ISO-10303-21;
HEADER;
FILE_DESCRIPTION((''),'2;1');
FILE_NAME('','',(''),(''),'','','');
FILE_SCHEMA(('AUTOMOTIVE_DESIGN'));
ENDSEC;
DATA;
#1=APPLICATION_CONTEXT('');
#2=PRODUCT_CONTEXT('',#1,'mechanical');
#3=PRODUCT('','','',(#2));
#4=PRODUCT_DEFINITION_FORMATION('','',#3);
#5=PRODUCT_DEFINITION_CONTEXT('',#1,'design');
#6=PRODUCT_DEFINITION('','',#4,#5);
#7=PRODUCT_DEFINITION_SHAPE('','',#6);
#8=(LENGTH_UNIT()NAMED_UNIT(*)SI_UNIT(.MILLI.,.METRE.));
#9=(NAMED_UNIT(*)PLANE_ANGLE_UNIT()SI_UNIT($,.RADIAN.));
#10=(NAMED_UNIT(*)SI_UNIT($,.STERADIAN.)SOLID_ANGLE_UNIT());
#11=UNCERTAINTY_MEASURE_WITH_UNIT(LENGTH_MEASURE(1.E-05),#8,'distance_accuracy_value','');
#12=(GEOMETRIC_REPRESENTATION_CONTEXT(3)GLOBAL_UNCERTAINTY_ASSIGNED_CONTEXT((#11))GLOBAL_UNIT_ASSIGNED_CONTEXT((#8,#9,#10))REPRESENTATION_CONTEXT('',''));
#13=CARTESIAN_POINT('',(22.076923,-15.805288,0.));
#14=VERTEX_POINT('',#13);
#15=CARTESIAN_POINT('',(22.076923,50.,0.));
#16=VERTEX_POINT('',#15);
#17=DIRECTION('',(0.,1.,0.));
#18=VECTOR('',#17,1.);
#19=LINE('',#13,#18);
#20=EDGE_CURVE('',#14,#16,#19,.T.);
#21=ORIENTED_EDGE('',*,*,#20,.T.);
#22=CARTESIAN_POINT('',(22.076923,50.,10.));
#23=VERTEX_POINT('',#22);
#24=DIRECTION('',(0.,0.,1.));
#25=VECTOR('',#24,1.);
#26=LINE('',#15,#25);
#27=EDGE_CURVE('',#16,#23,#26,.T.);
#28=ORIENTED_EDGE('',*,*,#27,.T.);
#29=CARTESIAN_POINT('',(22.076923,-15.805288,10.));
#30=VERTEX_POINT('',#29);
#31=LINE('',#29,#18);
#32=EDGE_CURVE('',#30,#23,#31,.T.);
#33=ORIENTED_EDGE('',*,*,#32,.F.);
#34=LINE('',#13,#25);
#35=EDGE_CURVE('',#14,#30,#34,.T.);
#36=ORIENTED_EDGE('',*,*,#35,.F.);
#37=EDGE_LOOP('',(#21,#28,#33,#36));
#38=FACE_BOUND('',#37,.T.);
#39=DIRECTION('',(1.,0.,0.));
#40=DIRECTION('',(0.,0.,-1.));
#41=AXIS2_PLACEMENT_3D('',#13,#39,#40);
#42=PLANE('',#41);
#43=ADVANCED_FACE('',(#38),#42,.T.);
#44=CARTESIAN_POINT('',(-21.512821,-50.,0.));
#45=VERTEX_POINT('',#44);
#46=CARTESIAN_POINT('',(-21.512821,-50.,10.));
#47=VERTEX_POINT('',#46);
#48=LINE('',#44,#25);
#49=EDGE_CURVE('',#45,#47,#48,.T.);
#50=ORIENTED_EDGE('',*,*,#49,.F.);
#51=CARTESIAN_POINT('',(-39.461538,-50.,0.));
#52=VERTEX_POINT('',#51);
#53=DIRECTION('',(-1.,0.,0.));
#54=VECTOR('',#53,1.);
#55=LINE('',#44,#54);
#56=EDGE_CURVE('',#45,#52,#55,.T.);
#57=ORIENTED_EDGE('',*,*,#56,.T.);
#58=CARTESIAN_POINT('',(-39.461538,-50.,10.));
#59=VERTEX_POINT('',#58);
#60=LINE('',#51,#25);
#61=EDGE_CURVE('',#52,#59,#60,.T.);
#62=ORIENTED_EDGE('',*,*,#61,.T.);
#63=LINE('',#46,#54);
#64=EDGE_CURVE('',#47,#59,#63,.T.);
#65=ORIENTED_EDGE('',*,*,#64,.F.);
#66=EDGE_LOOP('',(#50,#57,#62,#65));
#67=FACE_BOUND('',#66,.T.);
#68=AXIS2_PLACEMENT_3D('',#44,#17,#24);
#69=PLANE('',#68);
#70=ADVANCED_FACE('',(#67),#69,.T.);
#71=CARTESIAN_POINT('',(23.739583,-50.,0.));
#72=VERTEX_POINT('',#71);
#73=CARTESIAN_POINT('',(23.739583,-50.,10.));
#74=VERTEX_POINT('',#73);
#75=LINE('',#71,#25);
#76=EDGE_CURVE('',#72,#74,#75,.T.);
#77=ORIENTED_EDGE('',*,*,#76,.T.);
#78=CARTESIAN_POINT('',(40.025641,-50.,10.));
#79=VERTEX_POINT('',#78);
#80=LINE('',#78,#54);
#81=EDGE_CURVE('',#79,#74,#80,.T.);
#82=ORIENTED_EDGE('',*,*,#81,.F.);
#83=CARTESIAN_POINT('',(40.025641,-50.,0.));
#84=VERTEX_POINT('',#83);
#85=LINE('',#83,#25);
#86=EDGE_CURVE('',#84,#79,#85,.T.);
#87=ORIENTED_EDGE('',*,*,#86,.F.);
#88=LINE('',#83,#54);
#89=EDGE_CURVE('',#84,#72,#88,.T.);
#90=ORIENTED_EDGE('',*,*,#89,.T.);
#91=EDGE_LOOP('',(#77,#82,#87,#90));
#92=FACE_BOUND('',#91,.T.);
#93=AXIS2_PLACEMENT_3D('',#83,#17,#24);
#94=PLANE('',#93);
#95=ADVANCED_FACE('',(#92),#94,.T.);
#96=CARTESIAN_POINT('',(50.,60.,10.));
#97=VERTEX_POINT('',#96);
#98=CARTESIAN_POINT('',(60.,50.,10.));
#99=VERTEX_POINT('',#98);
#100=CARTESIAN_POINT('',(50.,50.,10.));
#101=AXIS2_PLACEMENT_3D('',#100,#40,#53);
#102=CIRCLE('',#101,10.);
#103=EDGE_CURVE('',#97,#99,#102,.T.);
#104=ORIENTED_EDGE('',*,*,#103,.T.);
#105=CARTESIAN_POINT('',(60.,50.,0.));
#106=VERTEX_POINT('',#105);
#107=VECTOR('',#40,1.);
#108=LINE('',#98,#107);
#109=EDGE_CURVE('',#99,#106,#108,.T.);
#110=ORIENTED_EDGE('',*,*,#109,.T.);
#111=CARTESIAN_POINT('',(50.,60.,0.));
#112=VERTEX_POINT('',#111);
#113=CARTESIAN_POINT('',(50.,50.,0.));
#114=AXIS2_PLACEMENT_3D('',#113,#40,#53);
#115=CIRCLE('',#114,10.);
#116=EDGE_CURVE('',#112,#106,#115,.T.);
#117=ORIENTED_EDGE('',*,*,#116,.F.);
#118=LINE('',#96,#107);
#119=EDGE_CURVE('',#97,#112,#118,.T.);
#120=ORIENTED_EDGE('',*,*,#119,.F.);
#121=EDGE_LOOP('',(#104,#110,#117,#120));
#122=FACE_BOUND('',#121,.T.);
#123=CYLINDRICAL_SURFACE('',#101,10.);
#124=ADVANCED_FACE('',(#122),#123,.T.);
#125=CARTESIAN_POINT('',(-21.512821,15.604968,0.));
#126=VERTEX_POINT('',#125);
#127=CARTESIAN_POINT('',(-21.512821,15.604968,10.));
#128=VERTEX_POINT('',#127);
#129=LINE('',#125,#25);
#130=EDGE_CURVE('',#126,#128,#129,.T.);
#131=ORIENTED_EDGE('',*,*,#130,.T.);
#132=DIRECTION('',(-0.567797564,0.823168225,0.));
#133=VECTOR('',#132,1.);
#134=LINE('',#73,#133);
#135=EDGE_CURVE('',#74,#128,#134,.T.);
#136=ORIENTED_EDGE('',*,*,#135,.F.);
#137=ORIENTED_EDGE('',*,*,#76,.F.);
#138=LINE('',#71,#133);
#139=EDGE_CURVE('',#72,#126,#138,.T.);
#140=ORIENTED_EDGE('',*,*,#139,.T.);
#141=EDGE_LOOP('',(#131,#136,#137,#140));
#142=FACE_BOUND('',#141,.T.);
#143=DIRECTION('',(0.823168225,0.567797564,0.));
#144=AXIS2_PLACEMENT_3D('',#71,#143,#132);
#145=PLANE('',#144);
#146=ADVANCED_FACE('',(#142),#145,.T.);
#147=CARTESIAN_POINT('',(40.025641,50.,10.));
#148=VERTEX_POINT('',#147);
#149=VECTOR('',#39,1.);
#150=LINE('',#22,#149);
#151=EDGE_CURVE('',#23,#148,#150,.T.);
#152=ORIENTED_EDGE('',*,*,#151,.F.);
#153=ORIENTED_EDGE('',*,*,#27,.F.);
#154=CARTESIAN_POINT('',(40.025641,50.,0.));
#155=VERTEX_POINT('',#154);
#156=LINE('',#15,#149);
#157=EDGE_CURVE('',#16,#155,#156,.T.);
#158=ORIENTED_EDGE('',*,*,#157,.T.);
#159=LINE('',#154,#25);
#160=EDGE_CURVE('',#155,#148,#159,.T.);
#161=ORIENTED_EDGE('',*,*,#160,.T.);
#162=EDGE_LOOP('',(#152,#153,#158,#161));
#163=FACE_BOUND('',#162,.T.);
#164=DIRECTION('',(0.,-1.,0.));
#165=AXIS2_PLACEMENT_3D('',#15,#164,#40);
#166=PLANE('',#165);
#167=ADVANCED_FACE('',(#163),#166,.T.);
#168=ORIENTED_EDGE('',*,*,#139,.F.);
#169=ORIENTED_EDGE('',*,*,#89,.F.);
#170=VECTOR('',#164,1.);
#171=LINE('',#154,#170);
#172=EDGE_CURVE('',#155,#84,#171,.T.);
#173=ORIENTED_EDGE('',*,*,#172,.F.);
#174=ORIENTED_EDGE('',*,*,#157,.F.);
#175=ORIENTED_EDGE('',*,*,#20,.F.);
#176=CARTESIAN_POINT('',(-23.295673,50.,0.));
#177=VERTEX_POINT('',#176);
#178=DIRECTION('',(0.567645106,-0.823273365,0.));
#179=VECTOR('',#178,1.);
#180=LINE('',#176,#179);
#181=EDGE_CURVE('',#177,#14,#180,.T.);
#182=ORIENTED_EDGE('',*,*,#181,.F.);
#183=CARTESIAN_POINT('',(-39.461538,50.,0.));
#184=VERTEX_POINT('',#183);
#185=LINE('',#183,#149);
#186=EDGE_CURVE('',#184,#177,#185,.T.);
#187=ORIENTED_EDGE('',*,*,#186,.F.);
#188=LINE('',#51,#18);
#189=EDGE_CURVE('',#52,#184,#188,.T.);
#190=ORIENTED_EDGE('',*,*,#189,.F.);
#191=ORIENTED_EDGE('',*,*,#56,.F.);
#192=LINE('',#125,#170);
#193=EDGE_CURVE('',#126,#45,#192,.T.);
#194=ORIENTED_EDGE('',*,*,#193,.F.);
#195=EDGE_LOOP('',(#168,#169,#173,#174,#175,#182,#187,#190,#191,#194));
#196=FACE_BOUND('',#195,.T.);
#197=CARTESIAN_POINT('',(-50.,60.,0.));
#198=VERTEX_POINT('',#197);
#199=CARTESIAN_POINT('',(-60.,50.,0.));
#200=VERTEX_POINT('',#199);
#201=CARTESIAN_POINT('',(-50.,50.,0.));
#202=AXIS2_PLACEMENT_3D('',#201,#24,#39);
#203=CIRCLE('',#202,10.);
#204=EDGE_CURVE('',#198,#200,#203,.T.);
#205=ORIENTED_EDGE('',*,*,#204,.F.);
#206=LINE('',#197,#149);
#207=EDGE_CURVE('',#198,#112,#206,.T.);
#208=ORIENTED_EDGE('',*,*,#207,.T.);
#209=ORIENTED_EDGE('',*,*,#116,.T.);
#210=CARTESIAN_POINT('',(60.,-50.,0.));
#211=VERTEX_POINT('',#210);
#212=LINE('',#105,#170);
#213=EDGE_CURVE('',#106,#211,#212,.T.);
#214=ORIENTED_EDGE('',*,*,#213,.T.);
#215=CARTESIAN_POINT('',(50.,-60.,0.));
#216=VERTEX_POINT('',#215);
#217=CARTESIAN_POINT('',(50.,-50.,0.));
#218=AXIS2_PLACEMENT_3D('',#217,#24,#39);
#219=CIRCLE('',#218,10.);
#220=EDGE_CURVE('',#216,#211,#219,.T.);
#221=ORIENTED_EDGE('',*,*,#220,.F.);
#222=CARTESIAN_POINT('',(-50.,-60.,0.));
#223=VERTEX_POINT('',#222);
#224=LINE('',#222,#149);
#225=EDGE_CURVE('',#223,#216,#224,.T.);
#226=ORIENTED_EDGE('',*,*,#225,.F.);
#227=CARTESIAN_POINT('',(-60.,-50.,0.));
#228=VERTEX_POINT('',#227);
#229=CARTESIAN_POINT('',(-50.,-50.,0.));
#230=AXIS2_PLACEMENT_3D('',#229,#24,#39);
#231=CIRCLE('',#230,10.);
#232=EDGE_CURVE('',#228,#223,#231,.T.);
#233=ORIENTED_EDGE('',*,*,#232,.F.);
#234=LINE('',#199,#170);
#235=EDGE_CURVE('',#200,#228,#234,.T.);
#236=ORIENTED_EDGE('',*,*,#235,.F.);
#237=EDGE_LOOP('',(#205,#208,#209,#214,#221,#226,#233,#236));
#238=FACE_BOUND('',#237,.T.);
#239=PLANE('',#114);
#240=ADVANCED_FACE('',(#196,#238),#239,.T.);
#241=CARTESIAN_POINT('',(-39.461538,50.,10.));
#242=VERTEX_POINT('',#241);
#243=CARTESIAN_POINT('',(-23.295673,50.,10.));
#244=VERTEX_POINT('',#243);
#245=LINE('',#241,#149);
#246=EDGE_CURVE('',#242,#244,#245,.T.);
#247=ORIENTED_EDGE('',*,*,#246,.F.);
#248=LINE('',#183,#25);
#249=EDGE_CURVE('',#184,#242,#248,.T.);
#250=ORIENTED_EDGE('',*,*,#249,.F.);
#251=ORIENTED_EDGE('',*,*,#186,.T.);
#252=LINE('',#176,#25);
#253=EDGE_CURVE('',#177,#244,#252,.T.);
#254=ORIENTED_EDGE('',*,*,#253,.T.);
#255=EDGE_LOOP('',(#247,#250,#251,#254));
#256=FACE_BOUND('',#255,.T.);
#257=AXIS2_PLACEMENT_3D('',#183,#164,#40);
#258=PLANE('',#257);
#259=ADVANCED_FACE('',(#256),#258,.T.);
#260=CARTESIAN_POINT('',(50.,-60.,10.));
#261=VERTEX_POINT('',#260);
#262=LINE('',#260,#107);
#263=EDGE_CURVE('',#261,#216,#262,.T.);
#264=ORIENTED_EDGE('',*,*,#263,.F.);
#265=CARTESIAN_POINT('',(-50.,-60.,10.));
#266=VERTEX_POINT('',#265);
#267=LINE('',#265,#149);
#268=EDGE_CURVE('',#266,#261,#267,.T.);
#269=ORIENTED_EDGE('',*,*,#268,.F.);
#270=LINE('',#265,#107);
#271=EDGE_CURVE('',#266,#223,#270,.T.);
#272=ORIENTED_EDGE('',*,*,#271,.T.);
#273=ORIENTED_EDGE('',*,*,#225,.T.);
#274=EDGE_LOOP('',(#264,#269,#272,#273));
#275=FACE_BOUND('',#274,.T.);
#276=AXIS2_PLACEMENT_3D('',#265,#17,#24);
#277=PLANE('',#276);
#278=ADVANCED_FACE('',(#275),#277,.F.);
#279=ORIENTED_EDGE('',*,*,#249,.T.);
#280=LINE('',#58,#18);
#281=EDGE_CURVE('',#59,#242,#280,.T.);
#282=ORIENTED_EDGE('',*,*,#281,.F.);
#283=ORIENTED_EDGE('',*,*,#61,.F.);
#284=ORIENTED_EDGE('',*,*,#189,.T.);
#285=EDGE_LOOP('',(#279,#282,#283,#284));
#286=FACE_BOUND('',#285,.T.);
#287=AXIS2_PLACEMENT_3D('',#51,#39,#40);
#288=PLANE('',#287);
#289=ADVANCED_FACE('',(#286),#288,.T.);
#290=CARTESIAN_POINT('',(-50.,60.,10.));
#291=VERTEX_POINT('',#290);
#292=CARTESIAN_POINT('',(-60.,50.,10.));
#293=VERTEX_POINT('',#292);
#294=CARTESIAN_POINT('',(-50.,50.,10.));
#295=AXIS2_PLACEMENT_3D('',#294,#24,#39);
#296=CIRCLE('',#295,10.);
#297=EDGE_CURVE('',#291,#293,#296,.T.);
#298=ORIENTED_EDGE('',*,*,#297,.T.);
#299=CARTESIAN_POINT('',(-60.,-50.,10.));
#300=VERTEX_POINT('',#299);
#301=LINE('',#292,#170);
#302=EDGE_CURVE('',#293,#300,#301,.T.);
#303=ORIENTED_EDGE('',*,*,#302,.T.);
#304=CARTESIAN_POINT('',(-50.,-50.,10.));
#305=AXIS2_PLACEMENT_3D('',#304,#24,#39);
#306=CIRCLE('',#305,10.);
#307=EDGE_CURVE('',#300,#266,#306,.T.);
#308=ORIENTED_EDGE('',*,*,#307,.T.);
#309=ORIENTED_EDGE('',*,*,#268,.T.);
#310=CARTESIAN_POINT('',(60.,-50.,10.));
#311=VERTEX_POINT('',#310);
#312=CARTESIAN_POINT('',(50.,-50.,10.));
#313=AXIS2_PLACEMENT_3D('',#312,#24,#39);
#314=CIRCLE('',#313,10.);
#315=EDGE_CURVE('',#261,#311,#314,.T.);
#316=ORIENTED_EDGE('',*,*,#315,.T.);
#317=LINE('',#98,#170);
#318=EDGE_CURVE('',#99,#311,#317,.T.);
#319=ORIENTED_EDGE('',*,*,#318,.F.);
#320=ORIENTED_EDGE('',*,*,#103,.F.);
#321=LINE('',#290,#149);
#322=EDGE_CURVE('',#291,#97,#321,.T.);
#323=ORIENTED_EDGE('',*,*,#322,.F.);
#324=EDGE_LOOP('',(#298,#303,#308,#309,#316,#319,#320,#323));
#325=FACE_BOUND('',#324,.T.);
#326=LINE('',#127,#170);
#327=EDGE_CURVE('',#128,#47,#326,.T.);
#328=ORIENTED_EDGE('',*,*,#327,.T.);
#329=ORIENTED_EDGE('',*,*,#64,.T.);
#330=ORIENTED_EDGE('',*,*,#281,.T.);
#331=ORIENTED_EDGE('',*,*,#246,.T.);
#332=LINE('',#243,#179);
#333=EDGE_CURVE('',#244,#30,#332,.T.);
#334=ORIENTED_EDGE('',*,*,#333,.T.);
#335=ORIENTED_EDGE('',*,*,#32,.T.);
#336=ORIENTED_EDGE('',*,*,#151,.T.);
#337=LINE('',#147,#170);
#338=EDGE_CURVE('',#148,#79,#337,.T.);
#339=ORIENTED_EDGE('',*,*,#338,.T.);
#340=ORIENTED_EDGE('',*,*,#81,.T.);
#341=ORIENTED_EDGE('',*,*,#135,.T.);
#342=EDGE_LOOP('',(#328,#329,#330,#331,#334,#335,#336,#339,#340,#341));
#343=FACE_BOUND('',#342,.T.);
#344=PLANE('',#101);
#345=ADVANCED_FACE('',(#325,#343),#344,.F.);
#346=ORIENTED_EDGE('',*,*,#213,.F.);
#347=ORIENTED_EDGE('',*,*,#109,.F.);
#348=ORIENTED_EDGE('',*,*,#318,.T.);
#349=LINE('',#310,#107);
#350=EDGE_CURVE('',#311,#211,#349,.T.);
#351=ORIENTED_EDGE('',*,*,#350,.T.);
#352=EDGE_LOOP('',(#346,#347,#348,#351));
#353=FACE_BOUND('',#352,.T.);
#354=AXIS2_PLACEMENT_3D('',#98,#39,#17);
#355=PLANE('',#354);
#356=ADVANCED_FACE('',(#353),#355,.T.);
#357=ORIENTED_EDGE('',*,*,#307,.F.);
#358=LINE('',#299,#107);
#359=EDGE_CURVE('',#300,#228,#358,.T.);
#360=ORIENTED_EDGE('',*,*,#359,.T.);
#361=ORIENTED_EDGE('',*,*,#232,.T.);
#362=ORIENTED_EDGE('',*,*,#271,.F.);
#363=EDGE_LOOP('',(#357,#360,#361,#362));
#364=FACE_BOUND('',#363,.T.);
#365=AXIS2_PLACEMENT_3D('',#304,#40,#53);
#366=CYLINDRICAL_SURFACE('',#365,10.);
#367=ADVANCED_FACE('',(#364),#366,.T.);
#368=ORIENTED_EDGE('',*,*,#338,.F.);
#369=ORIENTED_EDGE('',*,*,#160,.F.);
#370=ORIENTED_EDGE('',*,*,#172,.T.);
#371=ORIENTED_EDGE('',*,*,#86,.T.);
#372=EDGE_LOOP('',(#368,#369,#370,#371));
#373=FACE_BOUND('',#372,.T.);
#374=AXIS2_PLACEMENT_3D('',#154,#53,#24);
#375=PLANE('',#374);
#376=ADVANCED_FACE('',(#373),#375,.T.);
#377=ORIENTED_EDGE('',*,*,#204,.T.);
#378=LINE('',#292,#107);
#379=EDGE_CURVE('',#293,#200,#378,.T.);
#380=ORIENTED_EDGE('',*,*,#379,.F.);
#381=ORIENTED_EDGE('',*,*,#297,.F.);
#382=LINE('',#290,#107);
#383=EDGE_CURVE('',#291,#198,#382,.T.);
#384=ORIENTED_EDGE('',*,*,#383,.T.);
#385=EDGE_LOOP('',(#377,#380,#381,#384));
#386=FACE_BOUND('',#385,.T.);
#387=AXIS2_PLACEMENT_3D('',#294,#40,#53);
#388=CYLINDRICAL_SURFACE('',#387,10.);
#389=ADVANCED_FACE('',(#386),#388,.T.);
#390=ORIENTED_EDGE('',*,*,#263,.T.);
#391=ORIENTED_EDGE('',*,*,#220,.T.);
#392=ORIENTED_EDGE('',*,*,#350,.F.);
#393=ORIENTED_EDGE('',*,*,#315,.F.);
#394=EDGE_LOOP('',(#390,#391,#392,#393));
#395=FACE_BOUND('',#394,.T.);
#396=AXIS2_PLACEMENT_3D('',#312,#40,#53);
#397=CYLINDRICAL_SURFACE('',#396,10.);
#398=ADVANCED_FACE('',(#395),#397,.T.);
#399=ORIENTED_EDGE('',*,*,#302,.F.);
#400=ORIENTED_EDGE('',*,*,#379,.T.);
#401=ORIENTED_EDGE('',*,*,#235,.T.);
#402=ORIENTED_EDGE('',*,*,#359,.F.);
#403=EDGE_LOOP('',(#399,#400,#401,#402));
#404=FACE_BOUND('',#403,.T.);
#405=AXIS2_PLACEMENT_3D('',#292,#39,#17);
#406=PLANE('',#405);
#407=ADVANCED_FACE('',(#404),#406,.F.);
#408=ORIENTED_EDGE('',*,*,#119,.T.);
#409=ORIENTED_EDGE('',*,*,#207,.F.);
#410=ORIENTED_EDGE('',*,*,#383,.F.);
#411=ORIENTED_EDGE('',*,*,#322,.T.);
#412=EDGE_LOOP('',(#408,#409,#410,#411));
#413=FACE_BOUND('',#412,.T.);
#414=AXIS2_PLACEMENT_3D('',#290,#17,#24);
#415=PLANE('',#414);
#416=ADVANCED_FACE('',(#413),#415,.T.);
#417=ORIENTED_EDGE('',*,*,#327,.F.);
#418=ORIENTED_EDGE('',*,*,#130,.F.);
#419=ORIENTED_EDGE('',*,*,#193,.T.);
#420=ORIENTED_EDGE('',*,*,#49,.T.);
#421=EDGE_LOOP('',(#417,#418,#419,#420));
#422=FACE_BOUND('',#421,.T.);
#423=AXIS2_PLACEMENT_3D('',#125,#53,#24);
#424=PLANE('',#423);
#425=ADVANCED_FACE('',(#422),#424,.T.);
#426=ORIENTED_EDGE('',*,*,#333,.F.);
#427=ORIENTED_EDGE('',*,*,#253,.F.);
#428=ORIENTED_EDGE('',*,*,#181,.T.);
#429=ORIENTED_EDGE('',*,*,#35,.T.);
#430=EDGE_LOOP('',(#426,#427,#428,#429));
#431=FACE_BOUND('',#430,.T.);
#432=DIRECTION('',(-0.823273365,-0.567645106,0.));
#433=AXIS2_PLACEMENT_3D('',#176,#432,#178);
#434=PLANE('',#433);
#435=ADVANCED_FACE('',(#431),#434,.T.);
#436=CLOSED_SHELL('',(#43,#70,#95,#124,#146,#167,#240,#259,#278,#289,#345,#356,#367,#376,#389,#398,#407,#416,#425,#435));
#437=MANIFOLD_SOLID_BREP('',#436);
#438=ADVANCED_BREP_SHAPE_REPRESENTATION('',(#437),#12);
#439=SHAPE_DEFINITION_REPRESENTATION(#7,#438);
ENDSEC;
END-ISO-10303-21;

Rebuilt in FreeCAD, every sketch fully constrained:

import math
import FreeCAD as App
import Part
import Sketcher

V = App.Vector

doc = App.newDocument("Part")
body = doc.addObject("PartDesign::Body", "Body")

# Sketch on XY plane
sketch1 = doc.addObject("Sketcher::SketchObject", "Sketch")
body.addObject(sketch1)
sketch1.AttachmentSupport = (doc.XY_Plane, [""])
sketch1.MapMode = "FlatFace"
sketch1.addGeometry(Part.LineSegment(V(50, 60, 0), V(-50, 60, 0)), False)
sketch1.addGeometry(Part.ArcOfCircle(Part.Circle(V(-50, 50, 0), V(0, 0, 1), 10), math.radians(90), math.radians(180)), False)
sketch1.addGeometry(Part.LineSegment(V(-60, 50, 0), V(-60, -50, 0)), False)
sketch1.addGeometry(Part.ArcOfCircle(Part.Circle(V(-50, -50, 0), V(0, 0, 1), 10), math.radians(180), math.radians(270)), False)
sketch1.addGeometry(Part.LineSegment(V(-50, -60, 0), V(50, -60, 0)), False)
sketch1.addGeometry(Part.ArcOfCircle(Part.Circle(V(50, -50, 0), V(0, 0, 1), 10), math.radians(-90), math.radians(0)), False)
sketch1.addGeometry(Part.LineSegment(V(60, -50, 0), V(60, 50, 0)), False)
sketch1.addGeometry(Part.ArcOfCircle(Part.Circle(V(50, 50, 0), V(0, 0, 1), 10), math.radians(0), math.radians(90)), False)
sketch1.addConstraint(Sketcher.Constraint("Tangent", 0, 2, 1, 1))
sketch1.addConstraint(Sketcher.Constraint("Tangent", 1, 2, 2, 1))
sketch1.addConstraint(Sketcher.Constraint("Tangent", 2, 2, 3, 1))
sketch1.addConstraint(Sketcher.Constraint("Tangent", 3, 2, 4, 1))
sketch1.addConstraint(Sketcher.Constraint("Tangent", 4, 2, 5, 1))
sketch1.addConstraint(Sketcher.Constraint("Tangent", 5, 2, 6, 1))
sketch1.addConstraint(Sketcher.Constraint("Tangent", 6, 2, 7, 1))
sketch1.addConstraint(Sketcher.Constraint("Tangent", 7, 2, 0, 1))
sketch1.addConstraint(Sketcher.Constraint("Horizontal", 0))
sketch1.addConstraint(Sketcher.Constraint("Vertical", 2))
sketch1.addConstraint(Sketcher.Constraint("Horizontal", 4))
sketch1.addConstraint(Sketcher.Constraint("Vertical", 6))
sketch1.addConstraint(Sketcher.Constraint("Equal", 1, 3))
sketch1.addConstraint(Sketcher.Constraint("Equal", 3, 5))
sketch1.addConstraint(Sketcher.Constraint("Equal", 5, 7))
sketch1.addConstraint(Sketcher.Constraint("Symmetric", 1, 3, 5, 3, -1, 1))
sketch1.addConstraint(Sketcher.Constraint("Equal", 4, 2))
sketch1.addConstraint(Sketcher.Constraint("Radius", 1, 10.0))
sketch1.addConstraint(Sketcher.Constraint("DistanceX", 0, 2, 0, 1, 100.0))
pad1 = doc.addObject("PartDesign::Pad", "Pad")
body.addObject(pad1)
pad1.Profile = sketch1
pad1.Length = 10

# Sketch on XY plane
sketch2 = doc.addObject("Sketcher::SketchObject", "Sketch001")
body.addObject(sketch2)
sketch2.AttachmentSupport = (doc.XY_Plane, [""])
sketch2.MapMode = "FlatFace"
sketch2.AttachmentOffset = App.Placement(V(0, 0, 10), App.Rotation())
sketch2.addGeometry(Part.LineSegment(V(-23, 50, 0), V(-39, 50, 0)), False)
sketch2.addGeometry(Part.LineSegment(V(-39, 50, 0), V(-39, -50, 0)), False)
sketch2.addGeometry(Part.LineSegment(V(-39, -50, 0), V(-22, -50, 0)), False)
sketch2.addGeometry(Part.LineSegment(V(-22, -50, 0), V(-22, 16, 0)), False)
sketch2.addGeometry(Part.LineSegment(V(-22, 16, 0), V(24, -50, 0)), False)
sketch2.addGeometry(Part.LineSegment(V(24, -50, 0), V(40, -50, 0)), False)
sketch2.addGeometry(Part.LineSegment(V(40, -50, 0), V(40, 50, 0)), False)
sketch2.addGeometry(Part.LineSegment(V(40, 50, 0), V(22, 50, 0)), False)
sketch2.addGeometry(Part.LineSegment(V(22, 50, 0), V(22, -16, 0)), False)
sketch2.addGeometry(Part.LineSegment(V(22, -16, 0), V(-23, 50, 0)), False)
sketch2.addConstraint(Sketcher.Constraint("Coincident", 0, 2, 1, 1))
sketch2.addConstraint(Sketcher.Constraint("Coincident", 1, 2, 2, 1))
sketch2.addConstraint(Sketcher.Constraint("Coincident", 2, 2, 3, 1))
sketch2.addConstraint(Sketcher.Constraint("Coincident", 3, 2, 4, 1))
sketch2.addConstraint(Sketcher.Constraint("Coincident", 4, 2, 5, 1))
sketch2.addConstraint(Sketcher.Constraint("Coincident", 5, 2, 6, 1))
sketch2.addConstraint(Sketcher.Constraint("Coincident", 6, 2, 7, 1))
sketch2.addConstraint(Sketcher.Constraint("Coincident", 7, 2, 8, 1))
sketch2.addConstraint(Sketcher.Constraint("Coincident", 8, 2, 9, 1))
sketch2.addConstraint(Sketcher.Constraint("Coincident", 9, 2, 0, 1))
sketch2.addConstraint(Sketcher.Constraint("Horizontal", 0))
sketch2.addConstraint(Sketcher.Constraint("Vertical", 1))
sketch2.addConstraint(Sketcher.Constraint("Horizontal", 2))
sketch2.addConstraint(Sketcher.Constraint("Vertical", 3))
sketch2.addConstraint(Sketcher.Constraint("Horizontal", 5))
sketch2.addConstraint(Sketcher.Constraint("Vertical", 6))
sketch2.addConstraint(Sketcher.Constraint("Horizontal", 7))
sketch2.addConstraint(Sketcher.Constraint("Vertical", 8))
sketch2.addConstraint(Sketcher.Constraint("Horizontal", 2, 2, 4, 2))
sketch2.addConstraint(Sketcher.Constraint("Horizontal", 0, 2, 6, 2))
sketch2.addConstraint(Sketcher.Constraint("Equal", 2, 7))
sketch2.addConstraint(Sketcher.Constraint("DistanceY", 1, 2, 1, 1, 100.0))
sketch2.addConstraint(Sketcher.Constraint("DistanceY", -1, 1, 0, 2, 50.0))
sketch2.addConstraint(Sketcher.Constraint("DistanceY", 8, 2, 8, 1, 65.805288))
sketch2.addConstraint(Sketcher.Constraint("Distance", 4, 79.69813))
sketch2.addConstraint(Sketcher.Constraint("DistanceX", 0, 2, 0, 1, 16.165865))
sketch2.addConstraint(Sketcher.Constraint("DistanceX", 2, 1, 2, 2, 17.948718))
sketch2.addConstraint(Sketcher.Constraint("DistanceX", 5, 1, 5, 2, 16.286058))
sketch2.addConstraint(Sketcher.Constraint("DistanceY", 3, 1, 3, 2, 65.604968))
sketch2.addConstraint(Sketcher.Constraint("DistanceX", 0, 2, -1, 1, 39.461538))
pocket1 = doc.addObject("PartDesign::Pocket", "Pocket")
body.addObject(pocket1)
pocket1.Profile = sketch2
pocket1.Length = 10

doc.recompute()
